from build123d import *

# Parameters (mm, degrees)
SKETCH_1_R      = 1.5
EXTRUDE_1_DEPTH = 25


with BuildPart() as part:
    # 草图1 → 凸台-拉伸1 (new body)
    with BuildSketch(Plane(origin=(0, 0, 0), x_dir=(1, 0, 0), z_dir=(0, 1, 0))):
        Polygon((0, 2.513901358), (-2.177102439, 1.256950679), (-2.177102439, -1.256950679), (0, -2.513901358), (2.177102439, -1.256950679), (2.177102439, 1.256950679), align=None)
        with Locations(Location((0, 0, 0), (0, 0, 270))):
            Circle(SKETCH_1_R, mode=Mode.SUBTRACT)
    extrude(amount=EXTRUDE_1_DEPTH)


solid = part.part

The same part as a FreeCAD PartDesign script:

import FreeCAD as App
import Part
import Sketcher
from FreeCAD import Vector
Q = App.Units.Quantity


def add_polygon(sketch, points):
    """Adds a closed chain of lines whose ends are joined by coincident constraints."""
    first, n = sketch.GeometryCount, len(points)
    for a, b in zip(points, points[1:] + points[:1]):
        sketch.addGeometry(Part.LineSegment(App.Vector(*a, 0), App.Vector(*b, 0)), False)
    for i in range(n):
        sketch.addConstraint(Sketcher.Constraint("Coincident", first + i, 2, first + (i + 1) % n, 1))

doc = App.newDocument("Part")
body = doc.addObject("PartDesign::Body", "Body")

# Sketch on XZ plane
sketch1 = doc.addObject("Sketcher::SketchObject", "Sketch")
body.addObject(sketch1)
sketch1.AttachmentSupport = (doc.XZ_Plane, [""])
sketch1.MapMode = "FlatFace"
add_polygon(sketch1, [(0, -2.5), (-2.2, -1.3), (-2.2, 1.3), (0, 2.5), (2.2, 1.3), (2.2, -1.3)])  # lines 0-5
sketch1.addGeometry(Part.Circle(Vector(0, 0, 0), Vector(0, 0, 1), 1.5), False)  # 6
sketch1.addConstraint([
    Sketcher.Constraint("Vertical", 1),
    Sketcher.Constraint("Vertical", 4),
    Sketcher.Constraint("Coincident", 6, 3, -1, 1),
    Sketcher.Constraint("Symmetric", 0, 2, 3, 2, -1, 1),
    Sketcher.Constraint("Symmetric", 2, 2, 5, 2, -1, 1),
    Sketcher.Constraint("PointOnObject", 2, 2, -2),
    Sketcher.Constraint("Parallel", 2, 5),
    Sketcher.Constraint("Horizontal", 1, 2, 3, 2),
    Sketcher.Constraint("Diameter", 6, Q("3 mm")),
    Sketcher.Constraint("Angle", 0, Q("150 deg")),
    Sketcher.Constraint("DistanceY", 1, 1, 1, 2, Q("2.513901 mm")),
    Sketcher.Constraint("Distance", 0, Q("2.513901 mm")),
])
pad1 = doc.addObject("PartDesign::Pad", "Pad")
body.addObject(pad1)
pad1.Profile = sketch1
pad1.Length = 25
pad1.Reversed = True

doc.recompute()
